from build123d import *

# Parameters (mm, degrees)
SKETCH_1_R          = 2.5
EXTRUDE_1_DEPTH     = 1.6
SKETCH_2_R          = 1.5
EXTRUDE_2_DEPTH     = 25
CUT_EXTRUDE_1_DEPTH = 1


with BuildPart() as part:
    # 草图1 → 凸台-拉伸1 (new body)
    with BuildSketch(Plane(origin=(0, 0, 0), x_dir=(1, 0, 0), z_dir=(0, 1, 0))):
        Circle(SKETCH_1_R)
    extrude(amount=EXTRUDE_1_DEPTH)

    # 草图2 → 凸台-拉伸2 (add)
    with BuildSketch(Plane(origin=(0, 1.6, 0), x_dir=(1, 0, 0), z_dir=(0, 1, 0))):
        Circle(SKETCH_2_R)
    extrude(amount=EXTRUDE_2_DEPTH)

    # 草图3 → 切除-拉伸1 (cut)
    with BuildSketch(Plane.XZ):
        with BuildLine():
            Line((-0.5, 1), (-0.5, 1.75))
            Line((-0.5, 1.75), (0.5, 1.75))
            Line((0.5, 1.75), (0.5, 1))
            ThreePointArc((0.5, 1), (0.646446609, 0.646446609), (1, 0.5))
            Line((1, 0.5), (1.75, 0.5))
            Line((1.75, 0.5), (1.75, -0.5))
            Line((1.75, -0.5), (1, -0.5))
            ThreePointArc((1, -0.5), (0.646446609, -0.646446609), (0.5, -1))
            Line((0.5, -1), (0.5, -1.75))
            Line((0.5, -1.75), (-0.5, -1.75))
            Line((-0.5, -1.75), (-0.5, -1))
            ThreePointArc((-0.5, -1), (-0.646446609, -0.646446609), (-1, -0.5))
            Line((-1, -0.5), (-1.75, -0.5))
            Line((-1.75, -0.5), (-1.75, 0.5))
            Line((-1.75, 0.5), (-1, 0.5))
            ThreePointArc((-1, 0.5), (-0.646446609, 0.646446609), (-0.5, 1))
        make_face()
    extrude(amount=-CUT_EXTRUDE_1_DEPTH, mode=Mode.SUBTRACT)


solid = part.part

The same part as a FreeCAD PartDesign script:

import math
import FreeCAD as App
import Part
import Sketcher
Q = App.Units.Quantity

doc = App.newDocument("Part")
body = doc.addObject("PartDesign::Body", "Body")

# Sketch on XZ plane
sketch1 = doc.addObject("Sketcher::SketchObject", "Sketch")
body.addObject(sketch1)
sketch1.AttachmentSupport = (doc.XZ_Plane, [""])
sketch1.MapMode = "FlatFace"
sketch1.addGeometry(Part.Circle(App.Vector(0, 0, 0), App.Vector(0, 0, 1), 2.5), False)
sketch1.addConstraint(Sketcher.Constraint("Coincident", 0, 3, -1, 1))
sketch1.addConstraint(Sketcher.Constraint("Diameter", 0, Q("5 mm")))
pad1 = doc.addObject("PartDesign::Pad", "Pad")
body.addObject(pad1)
pad1.Profile = sketch1
pad1.Length = 1.6
pad1.Reversed = True

# Sketch on XZ plane
sketch2 = doc.addObject("Sketcher::SketchObject", "Sketch001")
body.addObject(sketch2)
sketch2.AttachmentSupport = (doc.XZ_Plane, [""])
sketch2.MapMode = "FlatFace"
sketch2.AttachmentOffset = App.Placement(App.Vector(0, 0, -1.6), App.Rotation())
sketch2.addGeometry(Part.Circle(App.Vector(0, 0, 0), App.Vector(0, 0, 1), 1.5), False)
sketch2.addConstraint(Sketcher.Constraint("Coincident", 0, 3, -1, 1))
sketch2.addConstraint(Sketcher.Constraint("Diameter", 0, Q("3 mm")))
pad2 = doc.addObject("PartDesign::Pad", "Pad001")
body.addObject(pad2)
pad2.Profile = sketch2
pad2.Length = 25
pad2.Reversed = True

# Sketch on XZ plane
sketch3 = doc.addObject("Sketcher::SketchObject", "Sketch002")
body.addObject(sketch3)
sketch3.AttachmentSupport = (doc.XZ_Plane, [""])
sketch3.MapMode = "FlatFace"
sketch3.addGeometry(Part.LineSegment(App.Vector(-0.5, 1.75, 0), App.Vector(-0.5, 1, 0)), False)
sketch3.addGeometry(Part.ArcOfCircle(Part.Circle(App.Vector(-1, 1, 0), App.Vector(0, 0, 1), 0.5), math.radians(-90), math.radians(0)), False)
sketch3.addGeometry(Part.LineSegment(App.Vector(-1, 0.5, 0), App.Vector(-1.75, 0.5, 0)), False)
sketch3.addGeometry(Part.LineSegment(App.Vector(-1.75, 0.5, 0), App.Vector(-1.75, -0.5, 0)), False)
sketch3.addGeometry(Part.LineSegment(App.Vector(-1.75, -0.5, 0), App.Vector(-1, -0.5, 0)), False)
sketch3.addGeometry(Part.ArcOfCircle(Part.Circle(App.Vector(-1, -1, 0), App.Vector(0, 0, 1), 0.5), math.radians(0), math.radians(90)), False)
sketch3.addGeometry(Part.LineSegment(App.Vector(-0.5, -1, 0), App.Vector(-0.5, -1.75, 0)), False)
sketch3.addGeometry(Part.LineSegment(App.Vector(-0.5, -1.75, 0), App.Vector(0.5, -1.75, 0)), False)
sketch3.addGeometry(Part.LineSegment(App.Vector(0.5, -1.75, 0), App.Vector(0.5, -1, 0)), False)
sketch3.addGeometry(Part.ArcOfCircle(Part.Circle(App.Vector(1, -1, 0), App.Vector(0, 0, 1), 0.5), math.radians(90), math.radians(180)), False)
sketch3.addGeometry(Part.LineSegment(App.Vector(1, -0.5, 0), App.Vector(1.75, -0.5, 0)), False)
sketch3.addGeometry(Part.LineSegment(App.Vector(1.75, -0.5, 0), App.Vector(1.75, 0.5, 0)), False)
sketch3.addGeometry(Part.LineSegment(App.Vector(1.75, 0.5, 0), App.Vector(1, 0.5, 0)), False)
sketch3.addGeometry(Part.ArcOfCircle(Part.Circle(App.Vector(1, 1, 0), App.Vector(0, 0, 1), 0.5), math.radians(180), math.radians(270)), False)
sketch3.addGeometry(Part.LineSegment(App.Vector(0.5, 1, 0), App.Vector(0.5, 1.75, 0)), False)
sketch3.addGeometry(Part.LineSegment(App.Vector(0.5, 1.75, 0), App.Vector(-0.5, 1.75, 0)), False)
sketch3.addConstraint(Sketcher.Constraint("Tangent", 0, 2, 1, 2))
sketch3.addConstraint(Sketcher.Constraint("Tangent", 1, 1, 2, 1))
sketch3.addConstraint(Sketcher.Constraint("Coincident", 2, 2, 3, 1))
sketch3.addConstraint(Sketcher.Constraint("Coincident", 3, 2, 4, 1))
sketch3.addConstraint(Sketcher.Constraint("Tangent", 4, 2, 5, 2))
sketch3.addConstraint(Sketcher.Constraint("Tangent", 5, 1, 6, 1))
sketch3.addConstraint(Sketcher.Constraint("Coincident", 6, 2, 7, 1))
sketch3.addConstraint(Sketcher.Constraint("Coincident", 7, 2, 8, 1))
sketch3.addConstraint(Sketcher.Constraint("Tangent", 8, 2, 9, 2))
sketch3.addConstraint(Sketcher.Constraint("Tangent", 9, 1, 10, 1))
sketch3.addConstraint(Sketcher.Constraint("Coincident", 10, 2, 11, 1))
sketch3.addConstraint(Sketcher.Constraint("Coincident", 11, 2, 12, 1))
sketch3.addConstraint(Sketcher.Constraint("Tangent", 12, 2, 13, 2))
sketch3.addConstraint(Sketcher.Constraint("Tangent", 13, 1, 14, 1))
sketch3.addConstraint(Sketcher.Constraint("Coincident", 14, 2, 15, 1))
sketch3.addConstraint(Sketcher.Constraint("Coincident", 15, 2, 0, 1))
sketch3.addConstraint(Sketcher.Constraint("Vertical", 0))
sketch3.addConstraint(Sketcher.Constraint("Horizontal", 2))
sketch3.addConstraint(Sketcher.Constraint("Vertical", 3))
sketch3.addConstraint(Sketcher.Constraint("Horizontal", 4))
sketch3.addConstraint(Sketcher.Constraint("Vertical", 6))
sketch3.addConstraint(Sketcher.Constraint("Horizontal", 7))
sketch3.addConstraint(Sketcher.Constraint("Vertical", 8))
sketch3.addConstraint(Sketcher.Constraint("Horizontal", 10))
sketch3.addConstraint(Sketcher.Constraint("Vertical", 11))
sketch3.addConstraint(Sketcher.Constraint("Horizontal", 12))
sketch3.addConstraint(Sketcher.Constraint("Vertical", 14))
sketch3.addConstraint(Sketcher.Constraint("Horizontal", 15))
sketch3.addConstraint(Sketcher.Constraint("Equal", 1, 5))
sketch3.addConstraint(Sketcher.Constraint("Equal", 5, 9))
sketch3.addConstraint(Sketcher.Constraint("Equal", 9, 13))
sketch3.addConstraint(Sketcher.Constraint("Symmetric", 1, 3, 9, 3, -1, 1))
sketch3.addConstraint(Sketcher.Constraint("Symmetric", 5, 3, 13, 3, -1, 1))
sketch3.addConstraint(Sketcher.Constraint("Symmetric", 5, 3, 9, 3, -2))
sketch3.addConstraint(Sketcher.Constraint("Equal", 4, 10))
sketch3.addConstraint(Sketcher.Constraint("Equal", 12, 0))
sketch3.addConstraint(Sketcher.Constraint("Equal", 15, 3))
sketch3.addConstraint(Sketcher.Constraint("Equal", 0, 6))
sketch3.addConstraint(Sketcher.Constraint("Radius", 1, Q("0.5 mm")))
sketch3.addConstraint(Sketcher.Constraint("DistanceX", 7, 1, 7, 2, Q("1 mm")))
sketch3.addConstraint(Sketcher.Constraint("DistanceX", 2, 2, 2, 1, Q("0.75 mm")))
pocket1 = doc.addObject("PartDesign::Pocket", "Pocket")
body.addObject(pocket1)
pocket1.Profile = sketch3
pocket1.Length = 1

doc.recompute()
